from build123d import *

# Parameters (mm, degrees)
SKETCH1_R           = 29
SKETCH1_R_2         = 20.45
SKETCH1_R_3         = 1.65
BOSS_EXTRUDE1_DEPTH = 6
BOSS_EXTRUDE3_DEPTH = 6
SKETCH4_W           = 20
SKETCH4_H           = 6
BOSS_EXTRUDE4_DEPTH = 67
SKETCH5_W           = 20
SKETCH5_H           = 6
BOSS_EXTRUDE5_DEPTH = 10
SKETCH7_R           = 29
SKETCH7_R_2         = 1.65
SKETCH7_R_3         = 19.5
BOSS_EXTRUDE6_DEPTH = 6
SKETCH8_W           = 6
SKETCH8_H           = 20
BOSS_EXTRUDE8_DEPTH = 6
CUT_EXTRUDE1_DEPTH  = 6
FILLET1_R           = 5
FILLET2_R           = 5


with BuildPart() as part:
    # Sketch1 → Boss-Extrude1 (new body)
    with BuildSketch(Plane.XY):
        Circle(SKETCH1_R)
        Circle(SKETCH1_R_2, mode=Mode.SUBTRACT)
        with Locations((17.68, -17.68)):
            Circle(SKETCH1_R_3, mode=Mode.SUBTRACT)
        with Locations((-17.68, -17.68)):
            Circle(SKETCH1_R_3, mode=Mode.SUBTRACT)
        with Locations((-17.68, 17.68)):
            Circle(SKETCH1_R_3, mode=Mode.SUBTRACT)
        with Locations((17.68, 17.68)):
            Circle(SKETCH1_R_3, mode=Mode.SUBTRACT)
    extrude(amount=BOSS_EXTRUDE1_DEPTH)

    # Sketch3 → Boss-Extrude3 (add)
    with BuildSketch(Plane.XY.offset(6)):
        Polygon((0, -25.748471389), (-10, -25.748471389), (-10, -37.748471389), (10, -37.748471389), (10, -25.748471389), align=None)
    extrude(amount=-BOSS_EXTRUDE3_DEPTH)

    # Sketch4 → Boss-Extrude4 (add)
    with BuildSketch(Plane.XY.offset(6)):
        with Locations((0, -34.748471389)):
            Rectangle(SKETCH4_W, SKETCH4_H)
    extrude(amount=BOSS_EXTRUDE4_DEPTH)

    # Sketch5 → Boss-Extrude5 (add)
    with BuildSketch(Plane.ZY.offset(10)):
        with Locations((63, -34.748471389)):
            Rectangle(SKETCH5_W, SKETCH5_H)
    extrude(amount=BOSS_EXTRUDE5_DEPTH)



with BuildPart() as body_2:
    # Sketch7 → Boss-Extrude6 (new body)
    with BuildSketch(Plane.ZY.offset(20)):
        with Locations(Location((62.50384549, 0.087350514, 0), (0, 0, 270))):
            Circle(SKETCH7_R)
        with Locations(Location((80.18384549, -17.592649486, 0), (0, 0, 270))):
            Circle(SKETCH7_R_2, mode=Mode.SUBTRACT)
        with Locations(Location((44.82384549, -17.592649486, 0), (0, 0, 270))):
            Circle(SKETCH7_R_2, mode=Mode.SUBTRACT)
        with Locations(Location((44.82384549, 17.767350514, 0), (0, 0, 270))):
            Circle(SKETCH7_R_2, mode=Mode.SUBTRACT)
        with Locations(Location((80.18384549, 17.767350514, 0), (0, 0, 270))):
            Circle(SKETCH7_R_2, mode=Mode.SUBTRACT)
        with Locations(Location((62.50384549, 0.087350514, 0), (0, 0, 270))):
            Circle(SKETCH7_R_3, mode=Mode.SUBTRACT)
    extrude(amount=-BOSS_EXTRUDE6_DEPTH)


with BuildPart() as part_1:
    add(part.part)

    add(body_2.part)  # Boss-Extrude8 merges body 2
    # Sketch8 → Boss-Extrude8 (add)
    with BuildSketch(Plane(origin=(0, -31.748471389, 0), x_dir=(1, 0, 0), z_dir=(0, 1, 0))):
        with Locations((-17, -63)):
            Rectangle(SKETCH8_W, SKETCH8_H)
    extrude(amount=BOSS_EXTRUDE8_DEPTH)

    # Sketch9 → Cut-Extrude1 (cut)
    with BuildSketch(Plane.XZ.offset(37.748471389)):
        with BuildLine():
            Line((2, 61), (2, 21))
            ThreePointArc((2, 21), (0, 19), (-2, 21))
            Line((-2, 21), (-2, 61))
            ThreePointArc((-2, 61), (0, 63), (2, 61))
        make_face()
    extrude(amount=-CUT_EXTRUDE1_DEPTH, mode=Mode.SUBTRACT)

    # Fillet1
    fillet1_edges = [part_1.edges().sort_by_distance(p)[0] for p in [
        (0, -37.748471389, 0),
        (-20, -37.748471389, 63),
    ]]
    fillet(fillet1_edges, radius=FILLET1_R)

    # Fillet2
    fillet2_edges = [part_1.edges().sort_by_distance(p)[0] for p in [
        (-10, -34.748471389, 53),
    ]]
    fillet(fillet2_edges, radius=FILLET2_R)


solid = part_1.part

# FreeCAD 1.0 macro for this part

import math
import FreeCAD as App
import Part
import Sketcher

V = App.Vector


def edges_at(feature, points):
    """Names of the edges that pass closest to the given points."""
    edges = feature.Shape.Edges
    near = lambda p: min(range(len(edges)), key=lambda i: edges[i].distToShape(Part.Vertex(*p))[0])
    return sorted({f"Edge{near(p) + 1}" for p in points})


def add_polygon(sketch, points):
    """Adds a closed chain of lines whose ends are joined by coincident constraints."""
    first, n = sketch.GeometryCount, len(points)
    for a, b in zip(points, points[1:] + points[:1]):
        sketch.addGeometry(Part.LineSegment(App.Vector(*a, 0), App.Vector(*b, 0)), False)
    for i in range(n):
        sketch.addConstraint(Sketcher.Constraint("Coincident", first + i, 2, first + (i + 1) % n, 1))

doc = App.newDocument("Part")
params = doc.addObject("Spreadsheet::Sheet", "Params")
for row, (alias, value) in enumerate([
    ("sketch1_diameter", "58 mm"),
    ("sketch1_diameter2", "3.3 mm"),
    ("sketch1_diameter3", "40.9 mm"),
    ("pad1_length", "6 mm"),
    ("sketch2_width", "20 mm"),
    ("sketch2_height", "12 mm"),
    ("pad2_length", "6 mm"),
    ("sketch3_width", "20 mm"),
    ("sketch3_height", "6 mm"),
    ("pad3_length", "67 mm"),
    ("sketch4_width", "6 mm"),
    ("sketch4_height", "20 mm"),
    ("pad4_length", "10 mm"),
    ("sketch5_diameter", "58 mm"),
    ("sketch5_diameter2", "39 mm"),
    ("sketch5_diameter3", "3.3 mm"),
    ("pad5_length", "6 mm"),
    ("sketch6_width", "6 mm"),
    ("sketch6_height", "20 mm"),
    ("pad6_length", "6 mm"),
    ("sketch7_radius", "2 mm"),
    ("sketch7_height", "40 mm"),
    ("pocket1_length", "6 mm"),
    ("fillet_radius", "5 mm"),
    ("fillet2_radius", "5 mm"),
], start=1):
    params.set(f"A{row}", alias)
    params.set(f"B{row}", "=" + value)
    params.setAlias(f"B{row}", alias)

body = doc.addObject("PartDesign::Body", "Body")

# Sketch on XY plane
sketch1 = doc.addObject("Sketcher::SketchObject", "Sketch")
body.addObject(sketch1)
sketch1.AttachmentSupport = (doc.XY_Plane, [""])
sketch1.MapMode = "FlatFace"
sketch1.addGeometry([
    Part.Circle(V(0, 0, 0), V(0, 0, 1), 29),  # 0
    Part.Circle(V(-17.7, -17.7, 0), V(0, 0, 1), 1.6),  # 1
    Part.Circle(V(17.7, -17.7, 0), V(0, 0, 1), 1.6),  # 2
    Part.Circle(V(-17.7, 17.7, 0), V(0, 0, 1), 1.6),  # 3
    Part.Circle(V(0, 0, 0), V(0, 0, 1), 20.4),  # 4
    Part.Circle(V(17.7, 17.7, 0), V(0, 0, 1), 1.6),  # 5
], False)
sketch1.addConstraint([
    Sketcher.Constraint("Coincident", 0, 3, -1, 1),
    Sketcher.Constraint("Coincident", 4, 3, -1, 1),
    Sketcher.Constraint("Equal", 1, 2),
    Sketcher.Constraint("Equal", 2, 3),
    Sketcher.Constraint("Equal", 3, 5),
    Sketcher.Constraint("Symmetric", 2, 3, 3, 3, -1, 1),
    Sketcher.Constraint("Symmetric", 1, 3, 5, 3, -1, 1),
    Sketcher.Constraint("Symmetric", 1, 3, 2, 3, -2),
    Sketcher.Constraint("Diameter", 0, 58.0),
    Sketcher.Constraint("Diameter", 1, 3.3),
    Sketcher.Constraint("Diameter", 4, 40.9),
    Sketcher.Constraint("DistanceX", 1, 3, -1, 1, 17.68),
    Sketcher.Constraint("DistanceY", 1, 3, -1, 1, 17.68),
])
sketch1.setExpression("Constraints[8]", "Params.sketch1_diameter")
sketch1.setExpression("Constraints[9]", "Params.sketch1_diameter2")
sketch1.setExpression("Constraints[10]", "Params.sketch1_diameter3")
pad1 = doc.addObject("PartDesign::Pad", "Pad")
body.addObject(pad1)
pad1.Profile = sketch1
pad1.setExpression("Length", "Params.pad1_length")

# Sketch on XY plane
sketch2 = doc.addObject("Sketcher::SketchObject", "Sketch001")
body.addObject(sketch2)
sketch2.AttachmentSupport = (doc.XY_Plane, [""])
sketch2.MapMode = "FlatFace"
sketch2.AttachmentOffset = App.Placement(V(0, 0, 6), App.Rotation())
add_polygon(sketch2, [(-10, -26), (-10, -38), (10, -38), (10, -26)])  # lines 0-3
sketch2.addConstraint([
    Sketcher.Constraint("Vertical", 0),
    Sketcher.Constraint("Horizontal", 1),
    Sketcher.Constraint("Vertical", 2),
    Sketcher.Constraint("Horizontal", 3),
    Sketcher.Constraint("DistanceX", 1, 1, 1, 2, 20.0),
    Sketcher.Constraint("DistanceY", 0, 2, 0, 1, 12.0),
    Sketcher.Constraint("DistanceX", 0, 2, -1, 1, 10.0),
    Sketcher.Constraint("DistanceY", 0, 2, -1, 1, 37.748471),
])
sketch2.setExpression("Constraints[8]", "Params.sketch2_width")
sketch2.setExpression("Constraints[9]", "Params.sketch2_height")
pad2 = doc.addObject("PartDesign::Pad", "Pad001")
body.addObject(pad2)
pad2.Profile = sketch2
pad2.setExpression("Length", "Params.pad2_length")
pad2.Reversed = True

# Sketch on XY plane
sketch3 = doc.addObject("Sketcher::SketchObject", "Sketch002")
body.addObject(sketch3)
sketch3.AttachmentSupport = (doc.XY_Plane, [""])
sketch3.MapMode = "FlatFace"
sketch3.AttachmentOffset = App.Placement(V(0, 0, 6), App.Rotation())
add_polygon(sketch3, [(-10, -32), (-10, -38), (10, -38), (10, -32)])  # lines 0-3
sketch3.addConstraint([
    Sketcher.Constraint("Vertical", 0),
    Sketcher.Constraint("Horizontal", 1),
    Sketcher.Constraint("Vertical", 2),
    Sketcher.Constraint("Horizontal", 3),
    Sketcher.Constraint("DistanceX", 1, 1, 1, 2, 20.0),
    Sketcher.Constraint("DistanceY", 0, 2, 0, 1, 6.0),
    Sketcher.Constraint("DistanceX", 0, 2, -1, 1, 10.0),
    Sketcher.Constraint("DistanceY", 0, 2, -1, 1, 37.748471),
])
sketch3.setExpression("Constraints[8]", "Params.sketch3_width")
sketch3.setExpression("Constraints[9]", "Params.sketch3_height")
pad3 = doc.addObject("PartDesign::Pad", "Pad002")
body.addObject(pad3)
pad3.Profile = sketch3
pad3.setExpression("Length", "Params.pad3_length")

# Sketch on YZ plane
sketch4 = doc.addObject("Sketcher::SketchObject", "Sketch003")
body.addObject(sketch4)
sketch4.AttachmentSupport = (doc.YZ_Plane, [""])
sketch4.MapMode = "FlatFace"
sketch4.AttachmentOffset = App.Placement(V(0, 0, -10), App.Rotation())
add_polygon(sketch4, [(-32, 53), (-38, 53), (-38, 73), (-32, 73)])  # lines 0-3
sketch4.addConstraint([
    Sketcher.Constraint("Horizontal", 0),
    Sketcher.Constraint("Vertical", 1),
    Sketcher.Constraint("Horizontal", 2),
    Sketcher.Constraint("Vertical", 3),
    Sketcher.Constraint("DistanceX", 0, 2, 0, 1, 6.0),
    Sketcher.Constraint("DistanceY", 1, 1, 1, 2, 20.0),
    Sketcher.Constraint("DistanceY", -1, 1, 0, 2, 53.0),
    Sketcher.Constraint("DistanceX", 0, 2, -1, 1, 37.748471),
])
sketch4.setExpression("Constraints[8]", "Params.sketch4_width")
sketch4.setExpression("Constraints[9]", "Params.sketch4_height")
pad4 = doc.addObject("PartDesign::Pad", "Pad003")
body.addObject(pad4)
pad4.Profile = sketch4
pad4.setExpression("Length", "Params.pad4_length")
pad4.Reversed = True
body2 = doc.addObject("PartDesign::Body", "Body001")

# Sketch on YZ plane
sketch5 = doc.addObject("Sketcher::SketchObject", "Sketch004")
body2.addObject(sketch5)
sketch5.AttachmentSupport = (doc.getObject("YZ_Plane001"), [""])
sketch5.MapMode = "FlatFace"
sketch5.AttachmentOffset = App.Placement(V(0, 0, -20), App.Rotation())
sketch5.addGeometry([
    Part.Circle(V(0.1, 62.5, 0), V(0, 0, 1), 29),  # 0
    Part.Circle(V(17.8, 44.8, 0), V(0, 0, 1), 1.6),  # 1
    Part.Circle(V(-17.6, 44.8, 0), V(0, 0, 1), 1.6),  # 2
    Part.Circle(V(17.8, 80.2, 0), V(0, 0, 1), 1.6),  # 3
    Part.Circle(V(0.1, 62.5, 0), V(0, 0, 1), 19.5),  # 4
    Part.Circle(V(-17.6, 80.2, 0), V(0, 0, 1), 1.6),  # 5
], False)
sketch5.addConstraint([
    Sketcher.Constraint("Coincident", 4, 3, 0, 3),
    Sketcher.Constraint("Equal", 1, 2),
    Sketcher.Constraint("Equal", 2, 3),
    Sketcher.Constraint("Equal", 3, 5),
    Sketcher.Constraint("Horizontal", 1, 3, 2, 3),
    Sketcher.Constraint("Horizontal", 3, 3, 5, 3),
    Sketcher.Constraint("Vertical", 1, 3, 3, 3),
    Sketcher.Constraint("Vertical", 2, 3, 5, 3),
    Sketcher.Constraint("Diameter", 0, 58.0),
    Sketcher.Constraint("Diameter", 4, 39.0),
    Sketcher.Constraint("Diameter", 1, 3.3),
    Sketcher.Constraint("DistanceX", 0, 3, 1, 3, 17.68),
    Sketcher.Constraint("DistanceY", 1, 3, 0, 3, 17.68),
    Sketcher.Constraint("DistanceX", 2, 3, 0, 3, 17.68),
    Sketcher.Constraint("DistanceY", 0, 3, 3, 3, 17.68),
    Sketcher.Constraint("DistanceX", -1, 1, 0, 3, 0.087351),
    Sketcher.Constraint("DistanceY", -1, 1, 0, 3, 62.503845),
])
sketch5.setExpression("Constraints[8]", "Params.sketch5_diameter")
sketch5.setExpression("Constraints[9]", "Params.sketch5_diameter2")
sketch5.setExpression("Constraints[10]", "Params.sketch5_diameter3")
pad5 = doc.addObject("PartDesign::Pad", "Pad004")
body2.addObject(pad5)
pad5.Profile = sketch5
pad5.setExpression("Length", "Params.pad5_length")
body.AllowCompound = True
doc.recompute()

boolean = doc.addObject("PartDesign::Boolean", "Boolean")
body.addObject(boolean)
boolean.Type = "Fuse"
boolean.addObjects([body2])

# Sketch on XZ plane
sketch6 = doc.addObject("Sketcher::SketchObject", "Sketch005")
body.addObject(sketch6)
sketch6.AttachmentSupport = (doc.XZ_Plane, [""])
sketch6.MapMode = "FlatFace"
sketch6.AttachmentOffset = App.Placement(V(0, 0, 31.748471), App.Rotation())
add_polygon(sketch6, [(-20, 53), (-20, 73), (-14, 73), (-14, 53)])  # lines 0-3
sketch6.addConstraint([
    Sketcher.Constraint("Vertical", 0),
    Sketcher.Constraint("Horizontal", 1),
    Sketcher.Constraint("Vertical", 2),
    Sketcher.Constraint("Horizontal", 3),
    Sketcher.Constraint("DistanceX", 1, 1, 1, 2, 6.0),
    Sketcher.Constraint("DistanceY", 0, 1, 0, 2, 20.0),
    Sketcher.Constraint("DistanceX", 0, 2, -1, 1, 20.0),
    Sketcher.Constraint("DistanceY", -1, 1, 0, 2, 73.0),
])
sketch6.setExpression("Constraints[8]", "Params.sketch6_width")
sketch6.setExpression("Constraints[9]", "Params.sketch6_height")
pad6 = doc.addObject("PartDesign::Pad", "Pad005")
body.addObject(pad6)
pad6.Profile = sketch6
pad6.setExpression("Length", "Params.pad6_length")
pad6.Reversed = True

# Sketch on XZ plane
sketch7 = doc.addObject("Sketcher::SketchObject", "Sketch006")
body.addObject(sketch7)
sketch7.AttachmentSupport = (doc.XZ_Plane, [""])
sketch7.MapMode = "FlatFace"
sketch7.AttachmentOffset = App.Placement(V(0, 0, 37.748471), App.Rotation())
sketch7.addGeometry([
    Part.LineSegment(V(2, 21, 0), V(2, 61, 0)),
    Part.ArcOfCircle(Part.Circle(V(0, 61, 0), V(0, 0, 1), 2), math.radians(0), math.radians(180)),
    Part.LineSegment(V(-2, 61, 0), V(-2, 21, 0)),
    Part.ArcOfCircle(Part.Circle(V(0, 21, 0), V(0, 0, 1), 2), math.radians(180), math.radians(360)),
], False)
sketch7.addConstraint([
    Sketcher.Constraint("Tangent", 0, 2, 1, 1),
    Sketcher.Constraint("Tangent", 1, 2, 2, 1),
    Sketcher.Constraint("Tangent", 2, 2, 3, 1),
    Sketcher.Constraint("Tangent", 3, 2, 0, 1),
    Sketcher.Constraint("Vertical", 0),
    Sketcher.Constraint("Vertical", 2),
    Sketcher.Constraint("PointOnObject", 1, 3, -2),
    Sketcher.Constraint("Radius", 1, 2.0),
    Sketcher.Constraint("DistanceY", 0, 1, 0, 2, 40.0),
    Sketcher.Constraint("DistanceY", -1, 1, 1, 3, 61.0),
])
sketch7.setExpression("Constraints[7]", "Params.sketch7_radius")
sketch7.setExpression("Constraints[8]", "Params.sketch7_height")
pocket1 = doc.addObject("PartDesign::Pocket", "Pocket")
body.addObject(pocket1)
pocket1.Profile = sketch7
pocket1.setExpression("Length", "Params.pocket1_length")
doc.recompute()

fillet = doc.addObject("PartDesign::Fillet", "Fillet")
body.addObject(fillet)
fillet.Base = (pocket1, edges_at(pocket1, [(0, -37.748, 0), (-20, -37.748, 63)]))
fillet.setExpression("Radius", "Params.fillet_radius")
doc.recompute()

fillet2 = doc.addObject("PartDesign::Fillet", "Fillet001")
body.addObject(fillet2)
fillet2.Base = (fillet, edges_at(fillet, [(-10, -34.748, 53)]))
fillet2.setExpression("Radius", "Params.fillet2_radius")

doc.recompute()
